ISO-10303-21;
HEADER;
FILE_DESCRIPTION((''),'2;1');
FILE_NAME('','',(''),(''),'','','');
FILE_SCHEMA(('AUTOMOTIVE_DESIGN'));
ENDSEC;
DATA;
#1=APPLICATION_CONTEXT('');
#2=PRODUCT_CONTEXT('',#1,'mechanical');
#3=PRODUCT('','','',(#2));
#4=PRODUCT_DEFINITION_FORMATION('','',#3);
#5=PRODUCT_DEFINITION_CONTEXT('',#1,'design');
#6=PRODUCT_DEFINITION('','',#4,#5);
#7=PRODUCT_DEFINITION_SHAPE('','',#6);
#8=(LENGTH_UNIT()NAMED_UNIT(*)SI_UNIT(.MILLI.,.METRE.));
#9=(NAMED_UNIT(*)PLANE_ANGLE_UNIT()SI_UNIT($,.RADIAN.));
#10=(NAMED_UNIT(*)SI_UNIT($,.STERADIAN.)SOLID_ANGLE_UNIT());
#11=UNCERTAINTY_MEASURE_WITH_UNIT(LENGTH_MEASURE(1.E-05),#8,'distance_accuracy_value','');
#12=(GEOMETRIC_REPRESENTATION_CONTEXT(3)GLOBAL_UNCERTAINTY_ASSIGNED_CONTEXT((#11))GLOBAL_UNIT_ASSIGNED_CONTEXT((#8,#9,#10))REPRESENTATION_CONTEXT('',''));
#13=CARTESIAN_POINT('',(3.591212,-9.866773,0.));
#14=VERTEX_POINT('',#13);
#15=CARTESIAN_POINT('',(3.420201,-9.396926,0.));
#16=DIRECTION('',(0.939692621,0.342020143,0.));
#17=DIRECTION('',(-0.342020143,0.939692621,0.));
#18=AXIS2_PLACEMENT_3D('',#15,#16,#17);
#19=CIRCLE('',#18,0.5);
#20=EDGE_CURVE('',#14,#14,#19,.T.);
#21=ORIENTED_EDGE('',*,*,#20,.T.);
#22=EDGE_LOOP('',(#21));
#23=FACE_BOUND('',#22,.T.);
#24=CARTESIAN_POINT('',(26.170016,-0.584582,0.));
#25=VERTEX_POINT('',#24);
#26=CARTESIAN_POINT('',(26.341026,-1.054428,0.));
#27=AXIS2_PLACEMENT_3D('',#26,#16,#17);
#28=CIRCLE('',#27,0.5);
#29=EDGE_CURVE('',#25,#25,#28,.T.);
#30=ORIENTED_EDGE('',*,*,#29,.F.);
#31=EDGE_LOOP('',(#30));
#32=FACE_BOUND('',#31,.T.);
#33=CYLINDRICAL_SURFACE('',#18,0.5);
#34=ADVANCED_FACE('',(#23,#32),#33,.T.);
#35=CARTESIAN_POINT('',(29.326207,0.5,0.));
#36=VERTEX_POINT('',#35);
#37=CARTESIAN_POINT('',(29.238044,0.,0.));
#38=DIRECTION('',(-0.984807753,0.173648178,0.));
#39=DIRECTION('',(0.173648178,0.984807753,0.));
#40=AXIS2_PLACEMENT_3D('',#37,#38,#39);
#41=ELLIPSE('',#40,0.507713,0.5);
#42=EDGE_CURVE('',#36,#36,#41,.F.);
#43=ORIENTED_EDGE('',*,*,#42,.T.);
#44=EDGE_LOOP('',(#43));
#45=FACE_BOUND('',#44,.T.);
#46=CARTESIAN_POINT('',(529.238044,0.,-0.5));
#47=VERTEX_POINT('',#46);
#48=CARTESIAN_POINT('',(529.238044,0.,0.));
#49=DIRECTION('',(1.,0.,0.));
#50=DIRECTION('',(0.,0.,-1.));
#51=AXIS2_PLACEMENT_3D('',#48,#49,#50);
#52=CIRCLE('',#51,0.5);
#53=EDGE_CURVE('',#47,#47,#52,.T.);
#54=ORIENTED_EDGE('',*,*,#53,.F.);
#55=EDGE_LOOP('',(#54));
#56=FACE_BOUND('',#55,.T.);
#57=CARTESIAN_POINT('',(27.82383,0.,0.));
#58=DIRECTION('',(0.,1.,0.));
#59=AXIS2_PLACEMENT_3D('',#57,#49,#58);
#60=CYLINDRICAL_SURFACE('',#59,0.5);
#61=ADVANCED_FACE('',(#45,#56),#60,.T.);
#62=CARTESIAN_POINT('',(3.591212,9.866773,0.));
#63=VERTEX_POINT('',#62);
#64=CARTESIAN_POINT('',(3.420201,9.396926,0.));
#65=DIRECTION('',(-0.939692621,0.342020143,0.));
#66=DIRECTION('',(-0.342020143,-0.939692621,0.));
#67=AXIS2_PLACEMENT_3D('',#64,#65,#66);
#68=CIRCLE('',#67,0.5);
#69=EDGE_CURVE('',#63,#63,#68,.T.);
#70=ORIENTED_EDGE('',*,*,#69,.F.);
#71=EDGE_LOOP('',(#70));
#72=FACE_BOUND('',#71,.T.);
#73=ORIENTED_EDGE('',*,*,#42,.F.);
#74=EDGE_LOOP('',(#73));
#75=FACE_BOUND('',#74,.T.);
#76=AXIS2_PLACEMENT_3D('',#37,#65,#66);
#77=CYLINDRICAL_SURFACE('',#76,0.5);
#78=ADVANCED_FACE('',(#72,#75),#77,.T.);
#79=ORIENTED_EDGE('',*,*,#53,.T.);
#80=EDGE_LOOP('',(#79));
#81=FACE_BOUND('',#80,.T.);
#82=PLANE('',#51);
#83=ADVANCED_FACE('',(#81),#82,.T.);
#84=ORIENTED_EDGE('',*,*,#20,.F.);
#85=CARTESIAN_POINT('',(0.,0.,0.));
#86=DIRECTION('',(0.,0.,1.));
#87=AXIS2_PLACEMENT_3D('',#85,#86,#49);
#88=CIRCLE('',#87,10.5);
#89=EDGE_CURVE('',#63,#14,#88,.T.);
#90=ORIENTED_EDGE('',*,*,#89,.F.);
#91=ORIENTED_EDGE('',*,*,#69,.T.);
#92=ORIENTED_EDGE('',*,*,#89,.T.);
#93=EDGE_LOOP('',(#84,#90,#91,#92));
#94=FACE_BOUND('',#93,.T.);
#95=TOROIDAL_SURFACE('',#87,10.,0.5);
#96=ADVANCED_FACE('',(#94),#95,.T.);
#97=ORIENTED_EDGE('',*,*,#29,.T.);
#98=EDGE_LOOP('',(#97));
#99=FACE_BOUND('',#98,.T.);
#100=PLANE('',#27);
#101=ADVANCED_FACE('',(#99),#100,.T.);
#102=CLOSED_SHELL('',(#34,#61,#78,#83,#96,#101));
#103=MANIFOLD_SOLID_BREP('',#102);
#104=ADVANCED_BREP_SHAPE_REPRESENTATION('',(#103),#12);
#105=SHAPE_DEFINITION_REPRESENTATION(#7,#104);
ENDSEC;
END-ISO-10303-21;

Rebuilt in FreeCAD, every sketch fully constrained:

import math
import FreeCAD as App
import Part
import Sketcher
from FreeCAD import Vector
Q = App.Units.Quantity

doc = App.newDocument("Part")
body = doc.addObject("PartDesign::Body", "Body")

sketch1 = body.newObject("Sketcher::SketchObject", "Sketch")
sketch1.AttachmentSupport = (doc.getObject("YZ_Plane"), [""])
sketch1.MapMode = "FlatFace"
sketch1.AttachmentOffset = App.Placement(Vector(0, 0, 529.238044), App.Rotation())
sketch1.addGeometry(Part.Circle(Vector(0, 0, 0), Vector(0, 0, 1), 0.5), False)
sketch1.addConstraint(Sketcher.Constraint("Coincident", 0, 3, -1, 1))
sketch1.addConstraint(Sketcher.Constraint("Diameter", 0, Q("1 mm")))

sketch2 = body.newObject("Sketcher::SketchObject", "Sketch001")
sketch2.AttachmentSupport = (doc.getObject("XY_Plane"), [""])
sketch2.MapMode = "FlatFace"
sketch2.addGeometry(Part.LineSegment(Vector(529, 0, 0), Vector(29, 0, 0)), False)
sketch2.addGeometry(Part.LineSegment(Vector(29, 0, 0), Vector(3, 9, 0)), False)
sketch2.addGeometry(Part.ArcOfCircle(Part.Circle(Vector(0, 0, 0), Vector(0, 0, 1), 10), math.radians(70), math.radians(290)), False)
sketch2.addGeometry(Part.LineSegment(Vector(3, -9, 0), Vector(26, -1, 0)), False)
sketch2.addConstraint(Sketcher.Constraint("Coincident", 0, 2, 1, 1))
sketch2.addConstraint(Sketcher.Constraint("Tangent", 1, 2, 2, 1))
sketch2.addConstraint(Sketcher.Constraint("Tangent", 2, 2, 3, 1))
sketch2.addConstraint(Sketcher.Constraint("Horizontal", 0))
sketch2.addConstraint(Sketcher.Constraint("Coincident", 2, 3, -1, 1))
sketch2.addConstraint(Sketcher.Constraint("PointOnObject", 0, 1, -1))
sketch2.addConstraint(Sketcher.Constraint("Vertical", 1, 2, 2, 2))
sketch2.addConstraint(Sketcher.Constraint("Radius", 2, Q("10 mm")))
sketch2.addConstraint(Sketcher.Constraint("DistanceX", 0, 2, 0, 1, Q("500 mm")))
sketch2.addConstraint(Sketcher.Constraint("Angle", 1, Q("160 deg")))
sketch2.addConstraint(Sketcher.Constraint("DistanceY", 2, 2, 3, 2, Q("8.342498 mm")))
doc.recompute()

additivepipe = body.newObject("PartDesign::AdditivePipe", "AdditivePipe")
additivepipe.Profile = sketch1
additivepipe.Spine = (sketch2, ["Edge1", "Edge2", "Edge3", "Edge4"])
additivepipe.Transition = "Right corner"

doc.recompute()
